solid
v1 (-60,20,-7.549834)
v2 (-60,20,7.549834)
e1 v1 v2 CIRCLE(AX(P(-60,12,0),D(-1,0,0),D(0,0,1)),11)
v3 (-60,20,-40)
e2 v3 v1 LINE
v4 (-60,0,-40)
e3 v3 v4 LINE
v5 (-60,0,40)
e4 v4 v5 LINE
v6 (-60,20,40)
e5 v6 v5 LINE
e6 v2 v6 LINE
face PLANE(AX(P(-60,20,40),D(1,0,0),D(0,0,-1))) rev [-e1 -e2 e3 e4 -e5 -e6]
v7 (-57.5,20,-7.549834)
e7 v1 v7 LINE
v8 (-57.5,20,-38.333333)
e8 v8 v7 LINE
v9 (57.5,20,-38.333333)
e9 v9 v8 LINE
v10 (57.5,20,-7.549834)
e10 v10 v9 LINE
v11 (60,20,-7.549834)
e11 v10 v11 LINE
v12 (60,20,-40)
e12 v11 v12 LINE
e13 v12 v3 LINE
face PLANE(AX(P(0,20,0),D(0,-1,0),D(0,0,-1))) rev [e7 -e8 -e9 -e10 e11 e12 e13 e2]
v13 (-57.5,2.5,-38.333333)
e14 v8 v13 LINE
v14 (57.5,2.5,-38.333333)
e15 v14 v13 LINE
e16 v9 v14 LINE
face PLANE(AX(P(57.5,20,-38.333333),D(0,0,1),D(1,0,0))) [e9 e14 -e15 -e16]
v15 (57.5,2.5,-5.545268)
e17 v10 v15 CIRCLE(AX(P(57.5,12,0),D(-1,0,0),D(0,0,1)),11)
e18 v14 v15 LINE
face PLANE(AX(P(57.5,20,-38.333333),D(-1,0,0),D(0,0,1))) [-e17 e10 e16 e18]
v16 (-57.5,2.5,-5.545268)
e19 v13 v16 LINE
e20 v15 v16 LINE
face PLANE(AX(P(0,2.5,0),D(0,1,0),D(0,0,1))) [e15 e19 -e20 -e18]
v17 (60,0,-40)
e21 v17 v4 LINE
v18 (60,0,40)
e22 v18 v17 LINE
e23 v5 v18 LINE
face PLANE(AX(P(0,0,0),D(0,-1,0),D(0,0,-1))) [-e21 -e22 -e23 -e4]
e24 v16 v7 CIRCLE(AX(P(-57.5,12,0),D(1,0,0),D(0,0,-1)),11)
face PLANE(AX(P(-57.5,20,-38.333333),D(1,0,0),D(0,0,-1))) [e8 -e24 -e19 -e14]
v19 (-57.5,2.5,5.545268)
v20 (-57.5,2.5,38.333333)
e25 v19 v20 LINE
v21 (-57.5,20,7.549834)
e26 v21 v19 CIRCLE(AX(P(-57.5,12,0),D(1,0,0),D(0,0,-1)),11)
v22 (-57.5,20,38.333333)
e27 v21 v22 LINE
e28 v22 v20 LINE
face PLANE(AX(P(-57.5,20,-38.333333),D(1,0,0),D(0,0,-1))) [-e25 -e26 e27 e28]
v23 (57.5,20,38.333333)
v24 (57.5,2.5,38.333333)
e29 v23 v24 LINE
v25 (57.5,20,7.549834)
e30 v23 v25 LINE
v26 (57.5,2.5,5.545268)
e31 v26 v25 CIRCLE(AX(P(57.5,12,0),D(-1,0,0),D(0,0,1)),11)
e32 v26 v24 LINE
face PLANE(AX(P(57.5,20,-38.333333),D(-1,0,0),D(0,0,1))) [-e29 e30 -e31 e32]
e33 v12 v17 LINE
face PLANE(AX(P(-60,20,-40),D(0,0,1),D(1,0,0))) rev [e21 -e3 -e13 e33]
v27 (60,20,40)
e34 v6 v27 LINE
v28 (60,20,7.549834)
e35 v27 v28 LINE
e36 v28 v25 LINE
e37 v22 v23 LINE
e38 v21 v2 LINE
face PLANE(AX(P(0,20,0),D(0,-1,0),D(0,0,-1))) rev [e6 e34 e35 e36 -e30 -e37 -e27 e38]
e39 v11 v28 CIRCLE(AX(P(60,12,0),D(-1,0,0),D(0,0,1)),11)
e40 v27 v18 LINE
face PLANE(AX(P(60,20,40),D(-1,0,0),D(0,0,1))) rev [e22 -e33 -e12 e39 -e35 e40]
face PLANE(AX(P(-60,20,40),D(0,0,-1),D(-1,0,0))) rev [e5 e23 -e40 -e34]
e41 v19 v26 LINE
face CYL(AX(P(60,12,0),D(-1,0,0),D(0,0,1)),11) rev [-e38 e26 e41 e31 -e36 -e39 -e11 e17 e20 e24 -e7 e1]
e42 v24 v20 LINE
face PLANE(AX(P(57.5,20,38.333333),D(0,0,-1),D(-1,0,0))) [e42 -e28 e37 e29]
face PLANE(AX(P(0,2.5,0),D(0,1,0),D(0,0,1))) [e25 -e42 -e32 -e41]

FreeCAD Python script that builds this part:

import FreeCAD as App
import Part
import Sketcher
from FreeCAD import Vector
Q = App.Units.Quantity

doc = App.newDocument("Part")
body = doc.addObject("PartDesign::Body", "Body")

# Sketch on XZ plane
sketch1 = body.newObject("Sketcher::SketchObject", "Sketch")
sketch1.AttachmentSupport = (doc.getObject("XZ_Plane"), [""])
sketch1.MapMode = "FlatFace"
sketch1.addGeometry([
    Part.LineSegment(Vector(-60, -40, 0), Vector(-60, 40, 0)),  # 0
    Part.LineSegment(Vector(-60, 40, 0), Vector(60, 40, 0)),  # 1
    Part.LineSegment(Vector(60, 40, 0), Vector(60, -40, 0)),  # 2
    Part.LineSegment(Vector(60, -40, 0), Vector(-60, -40, 0)),  # 3
    Part.LineSegment(Vector(58, 38, 0), Vector(-58, 38, 0)),  # 4
    Part.LineSegment(Vector(-58, 38, 0), Vector(-58, -38, 0)),  # 5
    Part.LineSegment(Vector(-58, -38, 0), Vector(58, -38, 0)),  # 6
    Part.LineSegment(Vector(58, -38, 0), Vector(58, 38, 0)),  # 7
], False)
sketch1.addConstraint([
    Sketcher.Constraint("Coincident", 0, 2, 1, 1),
    Sketcher.Constraint("Coincident", 1, 2, 2, 1),
    Sketcher.Constraint("Coincident", 2, 2, 3, 1),
    Sketcher.Constraint("Coincident", 3, 2, 0, 1),
    Sketcher.Constraint("Coincident", 4, 2, 5, 1),
    Sketcher.Constraint("Coincident", 5, 2, 6, 1),
    Sketcher.Constraint("Coincident", 6, 2, 7, 1),
    Sketcher.Constraint("Coincident", 7, 2, 4, 1),
    Sketcher.Constraint("Vertical", 0),
    Sketcher.Constraint("Horizontal", 1),
    Sketcher.Constraint("Vertical", 2),
    Sketcher.Constraint("Horizontal", 3),
    Sketcher.Constraint("Horizontal", 4),
    Sketcher.Constraint("Vertical", 5),
    Sketcher.Constraint("Horizontal", 6),
    Sketcher.Constraint("Vertical", 7),
    Sketcher.Constraint("Symmetric", 0, 2, 2, 2, -1, 1),
    Sketcher.Constraint("Symmetric", 4, 2, 6, 2, -1, 1),
    Sketcher.Constraint("DistanceX", 1, 1, 1, 2, Q("120 mm")),
    Sketcher.Constraint("DistanceX", 4, 2, 4, 1, Q("115 mm")),
    Sketcher.Constraint("DistanceY", 0, 1, 0, 2, Q("80 mm")),
    Sketcher.Constraint("DistanceY", 5, 2, 5, 1, Q("76.666667 mm")),
])
pad1 = body.newObject("PartDesign::Pad", "Pad")
pad1.Profile = sketch1
pad1.Length = 20
pad1.Reversed = True

# Sketch on XZ plane
sketch2 = body.newObject("Sketcher::SketchObject", "Sketch001")
sketch2.AttachmentSupport = (doc.getObject("XZ_Plane"), [""])
sketch2.MapMode = "FlatFace"
sketch2.addGeometry([
    Part.LineSegment(Vector(-58, -38, 0), Vector(-58, 38, 0)),
    Part.LineSegment(Vector(-58, 38, 0), Vector(58, 38, 0)),
    Part.LineSegment(Vector(58, 38, 0), Vector(58, -38, 0)),
    Part.LineSegment(Vector(58, -38, 0), Vector(-58, -38, 0)),
], False)
sketch2.addConstraint([
    Sketcher.Constraint("Coincident", 0, 2, 1, 1),
    Sketcher.Constraint("Coincident", 1, 2, 2, 1),
    Sketcher.Constraint("Coincident", 2, 2, 3, 1),
    Sketcher.Constraint("Coincident", 3, 2, 0, 1),
    Sketcher.Constraint("Vertical", 0),
    Sketcher.Constraint("Horizontal", 1),
    Sketcher.Constraint("Vertical", 2),
    Sketcher.Constraint("Horizontal", 3),
    Sketcher.Constraint("Symmetric", 0, 2, 2, 2, -1, 1),
    Sketcher.Constraint("DistanceX", 1, 1, 1, 2, Q("115 mm")),
    Sketcher.Constraint("DistanceY", 0, 1, 0, 2, Q("76.666667 mm")),
])
pad2 = body.newObject("PartDesign::Pad", "Pad001")
pad2.Profile = sketch2
pad2.Length = 2.5
pad2.Reversed = True

# Sketch on YZ plane
sketch3 = body.newObject("Sketcher::SketchObject", "Sketch002")
sketch3.AttachmentSupport = (doc.getObject("YZ_Plane"), [""])
sketch3.MapMode = "FlatFace"
sketch3.AttachmentOffset = App.Placement(Vector(0, 0, -60), App.Rotation())
sketch3.addGeometry(Part.Circle(Vector(12, 0, 0), Vector(0, 0, 1), 11), False)
sketch3.addConstraint([
    Sketcher.Constraint("PointOnObject", 0, 3, -1),
    Sketcher.Constraint("Diameter", 0, Q("22 mm")),
    Sketcher.Constraint("DistanceX", -1, 1, 0, 3, Q("12 mm")),
])
pocket1 = body.newObject("PartDesign::Pocket", "Pocket")
pocket1.Profile = sketch3
pocket1.Type = "ThroughAll"
pocket1.Reversed = True

doc.recompute()
